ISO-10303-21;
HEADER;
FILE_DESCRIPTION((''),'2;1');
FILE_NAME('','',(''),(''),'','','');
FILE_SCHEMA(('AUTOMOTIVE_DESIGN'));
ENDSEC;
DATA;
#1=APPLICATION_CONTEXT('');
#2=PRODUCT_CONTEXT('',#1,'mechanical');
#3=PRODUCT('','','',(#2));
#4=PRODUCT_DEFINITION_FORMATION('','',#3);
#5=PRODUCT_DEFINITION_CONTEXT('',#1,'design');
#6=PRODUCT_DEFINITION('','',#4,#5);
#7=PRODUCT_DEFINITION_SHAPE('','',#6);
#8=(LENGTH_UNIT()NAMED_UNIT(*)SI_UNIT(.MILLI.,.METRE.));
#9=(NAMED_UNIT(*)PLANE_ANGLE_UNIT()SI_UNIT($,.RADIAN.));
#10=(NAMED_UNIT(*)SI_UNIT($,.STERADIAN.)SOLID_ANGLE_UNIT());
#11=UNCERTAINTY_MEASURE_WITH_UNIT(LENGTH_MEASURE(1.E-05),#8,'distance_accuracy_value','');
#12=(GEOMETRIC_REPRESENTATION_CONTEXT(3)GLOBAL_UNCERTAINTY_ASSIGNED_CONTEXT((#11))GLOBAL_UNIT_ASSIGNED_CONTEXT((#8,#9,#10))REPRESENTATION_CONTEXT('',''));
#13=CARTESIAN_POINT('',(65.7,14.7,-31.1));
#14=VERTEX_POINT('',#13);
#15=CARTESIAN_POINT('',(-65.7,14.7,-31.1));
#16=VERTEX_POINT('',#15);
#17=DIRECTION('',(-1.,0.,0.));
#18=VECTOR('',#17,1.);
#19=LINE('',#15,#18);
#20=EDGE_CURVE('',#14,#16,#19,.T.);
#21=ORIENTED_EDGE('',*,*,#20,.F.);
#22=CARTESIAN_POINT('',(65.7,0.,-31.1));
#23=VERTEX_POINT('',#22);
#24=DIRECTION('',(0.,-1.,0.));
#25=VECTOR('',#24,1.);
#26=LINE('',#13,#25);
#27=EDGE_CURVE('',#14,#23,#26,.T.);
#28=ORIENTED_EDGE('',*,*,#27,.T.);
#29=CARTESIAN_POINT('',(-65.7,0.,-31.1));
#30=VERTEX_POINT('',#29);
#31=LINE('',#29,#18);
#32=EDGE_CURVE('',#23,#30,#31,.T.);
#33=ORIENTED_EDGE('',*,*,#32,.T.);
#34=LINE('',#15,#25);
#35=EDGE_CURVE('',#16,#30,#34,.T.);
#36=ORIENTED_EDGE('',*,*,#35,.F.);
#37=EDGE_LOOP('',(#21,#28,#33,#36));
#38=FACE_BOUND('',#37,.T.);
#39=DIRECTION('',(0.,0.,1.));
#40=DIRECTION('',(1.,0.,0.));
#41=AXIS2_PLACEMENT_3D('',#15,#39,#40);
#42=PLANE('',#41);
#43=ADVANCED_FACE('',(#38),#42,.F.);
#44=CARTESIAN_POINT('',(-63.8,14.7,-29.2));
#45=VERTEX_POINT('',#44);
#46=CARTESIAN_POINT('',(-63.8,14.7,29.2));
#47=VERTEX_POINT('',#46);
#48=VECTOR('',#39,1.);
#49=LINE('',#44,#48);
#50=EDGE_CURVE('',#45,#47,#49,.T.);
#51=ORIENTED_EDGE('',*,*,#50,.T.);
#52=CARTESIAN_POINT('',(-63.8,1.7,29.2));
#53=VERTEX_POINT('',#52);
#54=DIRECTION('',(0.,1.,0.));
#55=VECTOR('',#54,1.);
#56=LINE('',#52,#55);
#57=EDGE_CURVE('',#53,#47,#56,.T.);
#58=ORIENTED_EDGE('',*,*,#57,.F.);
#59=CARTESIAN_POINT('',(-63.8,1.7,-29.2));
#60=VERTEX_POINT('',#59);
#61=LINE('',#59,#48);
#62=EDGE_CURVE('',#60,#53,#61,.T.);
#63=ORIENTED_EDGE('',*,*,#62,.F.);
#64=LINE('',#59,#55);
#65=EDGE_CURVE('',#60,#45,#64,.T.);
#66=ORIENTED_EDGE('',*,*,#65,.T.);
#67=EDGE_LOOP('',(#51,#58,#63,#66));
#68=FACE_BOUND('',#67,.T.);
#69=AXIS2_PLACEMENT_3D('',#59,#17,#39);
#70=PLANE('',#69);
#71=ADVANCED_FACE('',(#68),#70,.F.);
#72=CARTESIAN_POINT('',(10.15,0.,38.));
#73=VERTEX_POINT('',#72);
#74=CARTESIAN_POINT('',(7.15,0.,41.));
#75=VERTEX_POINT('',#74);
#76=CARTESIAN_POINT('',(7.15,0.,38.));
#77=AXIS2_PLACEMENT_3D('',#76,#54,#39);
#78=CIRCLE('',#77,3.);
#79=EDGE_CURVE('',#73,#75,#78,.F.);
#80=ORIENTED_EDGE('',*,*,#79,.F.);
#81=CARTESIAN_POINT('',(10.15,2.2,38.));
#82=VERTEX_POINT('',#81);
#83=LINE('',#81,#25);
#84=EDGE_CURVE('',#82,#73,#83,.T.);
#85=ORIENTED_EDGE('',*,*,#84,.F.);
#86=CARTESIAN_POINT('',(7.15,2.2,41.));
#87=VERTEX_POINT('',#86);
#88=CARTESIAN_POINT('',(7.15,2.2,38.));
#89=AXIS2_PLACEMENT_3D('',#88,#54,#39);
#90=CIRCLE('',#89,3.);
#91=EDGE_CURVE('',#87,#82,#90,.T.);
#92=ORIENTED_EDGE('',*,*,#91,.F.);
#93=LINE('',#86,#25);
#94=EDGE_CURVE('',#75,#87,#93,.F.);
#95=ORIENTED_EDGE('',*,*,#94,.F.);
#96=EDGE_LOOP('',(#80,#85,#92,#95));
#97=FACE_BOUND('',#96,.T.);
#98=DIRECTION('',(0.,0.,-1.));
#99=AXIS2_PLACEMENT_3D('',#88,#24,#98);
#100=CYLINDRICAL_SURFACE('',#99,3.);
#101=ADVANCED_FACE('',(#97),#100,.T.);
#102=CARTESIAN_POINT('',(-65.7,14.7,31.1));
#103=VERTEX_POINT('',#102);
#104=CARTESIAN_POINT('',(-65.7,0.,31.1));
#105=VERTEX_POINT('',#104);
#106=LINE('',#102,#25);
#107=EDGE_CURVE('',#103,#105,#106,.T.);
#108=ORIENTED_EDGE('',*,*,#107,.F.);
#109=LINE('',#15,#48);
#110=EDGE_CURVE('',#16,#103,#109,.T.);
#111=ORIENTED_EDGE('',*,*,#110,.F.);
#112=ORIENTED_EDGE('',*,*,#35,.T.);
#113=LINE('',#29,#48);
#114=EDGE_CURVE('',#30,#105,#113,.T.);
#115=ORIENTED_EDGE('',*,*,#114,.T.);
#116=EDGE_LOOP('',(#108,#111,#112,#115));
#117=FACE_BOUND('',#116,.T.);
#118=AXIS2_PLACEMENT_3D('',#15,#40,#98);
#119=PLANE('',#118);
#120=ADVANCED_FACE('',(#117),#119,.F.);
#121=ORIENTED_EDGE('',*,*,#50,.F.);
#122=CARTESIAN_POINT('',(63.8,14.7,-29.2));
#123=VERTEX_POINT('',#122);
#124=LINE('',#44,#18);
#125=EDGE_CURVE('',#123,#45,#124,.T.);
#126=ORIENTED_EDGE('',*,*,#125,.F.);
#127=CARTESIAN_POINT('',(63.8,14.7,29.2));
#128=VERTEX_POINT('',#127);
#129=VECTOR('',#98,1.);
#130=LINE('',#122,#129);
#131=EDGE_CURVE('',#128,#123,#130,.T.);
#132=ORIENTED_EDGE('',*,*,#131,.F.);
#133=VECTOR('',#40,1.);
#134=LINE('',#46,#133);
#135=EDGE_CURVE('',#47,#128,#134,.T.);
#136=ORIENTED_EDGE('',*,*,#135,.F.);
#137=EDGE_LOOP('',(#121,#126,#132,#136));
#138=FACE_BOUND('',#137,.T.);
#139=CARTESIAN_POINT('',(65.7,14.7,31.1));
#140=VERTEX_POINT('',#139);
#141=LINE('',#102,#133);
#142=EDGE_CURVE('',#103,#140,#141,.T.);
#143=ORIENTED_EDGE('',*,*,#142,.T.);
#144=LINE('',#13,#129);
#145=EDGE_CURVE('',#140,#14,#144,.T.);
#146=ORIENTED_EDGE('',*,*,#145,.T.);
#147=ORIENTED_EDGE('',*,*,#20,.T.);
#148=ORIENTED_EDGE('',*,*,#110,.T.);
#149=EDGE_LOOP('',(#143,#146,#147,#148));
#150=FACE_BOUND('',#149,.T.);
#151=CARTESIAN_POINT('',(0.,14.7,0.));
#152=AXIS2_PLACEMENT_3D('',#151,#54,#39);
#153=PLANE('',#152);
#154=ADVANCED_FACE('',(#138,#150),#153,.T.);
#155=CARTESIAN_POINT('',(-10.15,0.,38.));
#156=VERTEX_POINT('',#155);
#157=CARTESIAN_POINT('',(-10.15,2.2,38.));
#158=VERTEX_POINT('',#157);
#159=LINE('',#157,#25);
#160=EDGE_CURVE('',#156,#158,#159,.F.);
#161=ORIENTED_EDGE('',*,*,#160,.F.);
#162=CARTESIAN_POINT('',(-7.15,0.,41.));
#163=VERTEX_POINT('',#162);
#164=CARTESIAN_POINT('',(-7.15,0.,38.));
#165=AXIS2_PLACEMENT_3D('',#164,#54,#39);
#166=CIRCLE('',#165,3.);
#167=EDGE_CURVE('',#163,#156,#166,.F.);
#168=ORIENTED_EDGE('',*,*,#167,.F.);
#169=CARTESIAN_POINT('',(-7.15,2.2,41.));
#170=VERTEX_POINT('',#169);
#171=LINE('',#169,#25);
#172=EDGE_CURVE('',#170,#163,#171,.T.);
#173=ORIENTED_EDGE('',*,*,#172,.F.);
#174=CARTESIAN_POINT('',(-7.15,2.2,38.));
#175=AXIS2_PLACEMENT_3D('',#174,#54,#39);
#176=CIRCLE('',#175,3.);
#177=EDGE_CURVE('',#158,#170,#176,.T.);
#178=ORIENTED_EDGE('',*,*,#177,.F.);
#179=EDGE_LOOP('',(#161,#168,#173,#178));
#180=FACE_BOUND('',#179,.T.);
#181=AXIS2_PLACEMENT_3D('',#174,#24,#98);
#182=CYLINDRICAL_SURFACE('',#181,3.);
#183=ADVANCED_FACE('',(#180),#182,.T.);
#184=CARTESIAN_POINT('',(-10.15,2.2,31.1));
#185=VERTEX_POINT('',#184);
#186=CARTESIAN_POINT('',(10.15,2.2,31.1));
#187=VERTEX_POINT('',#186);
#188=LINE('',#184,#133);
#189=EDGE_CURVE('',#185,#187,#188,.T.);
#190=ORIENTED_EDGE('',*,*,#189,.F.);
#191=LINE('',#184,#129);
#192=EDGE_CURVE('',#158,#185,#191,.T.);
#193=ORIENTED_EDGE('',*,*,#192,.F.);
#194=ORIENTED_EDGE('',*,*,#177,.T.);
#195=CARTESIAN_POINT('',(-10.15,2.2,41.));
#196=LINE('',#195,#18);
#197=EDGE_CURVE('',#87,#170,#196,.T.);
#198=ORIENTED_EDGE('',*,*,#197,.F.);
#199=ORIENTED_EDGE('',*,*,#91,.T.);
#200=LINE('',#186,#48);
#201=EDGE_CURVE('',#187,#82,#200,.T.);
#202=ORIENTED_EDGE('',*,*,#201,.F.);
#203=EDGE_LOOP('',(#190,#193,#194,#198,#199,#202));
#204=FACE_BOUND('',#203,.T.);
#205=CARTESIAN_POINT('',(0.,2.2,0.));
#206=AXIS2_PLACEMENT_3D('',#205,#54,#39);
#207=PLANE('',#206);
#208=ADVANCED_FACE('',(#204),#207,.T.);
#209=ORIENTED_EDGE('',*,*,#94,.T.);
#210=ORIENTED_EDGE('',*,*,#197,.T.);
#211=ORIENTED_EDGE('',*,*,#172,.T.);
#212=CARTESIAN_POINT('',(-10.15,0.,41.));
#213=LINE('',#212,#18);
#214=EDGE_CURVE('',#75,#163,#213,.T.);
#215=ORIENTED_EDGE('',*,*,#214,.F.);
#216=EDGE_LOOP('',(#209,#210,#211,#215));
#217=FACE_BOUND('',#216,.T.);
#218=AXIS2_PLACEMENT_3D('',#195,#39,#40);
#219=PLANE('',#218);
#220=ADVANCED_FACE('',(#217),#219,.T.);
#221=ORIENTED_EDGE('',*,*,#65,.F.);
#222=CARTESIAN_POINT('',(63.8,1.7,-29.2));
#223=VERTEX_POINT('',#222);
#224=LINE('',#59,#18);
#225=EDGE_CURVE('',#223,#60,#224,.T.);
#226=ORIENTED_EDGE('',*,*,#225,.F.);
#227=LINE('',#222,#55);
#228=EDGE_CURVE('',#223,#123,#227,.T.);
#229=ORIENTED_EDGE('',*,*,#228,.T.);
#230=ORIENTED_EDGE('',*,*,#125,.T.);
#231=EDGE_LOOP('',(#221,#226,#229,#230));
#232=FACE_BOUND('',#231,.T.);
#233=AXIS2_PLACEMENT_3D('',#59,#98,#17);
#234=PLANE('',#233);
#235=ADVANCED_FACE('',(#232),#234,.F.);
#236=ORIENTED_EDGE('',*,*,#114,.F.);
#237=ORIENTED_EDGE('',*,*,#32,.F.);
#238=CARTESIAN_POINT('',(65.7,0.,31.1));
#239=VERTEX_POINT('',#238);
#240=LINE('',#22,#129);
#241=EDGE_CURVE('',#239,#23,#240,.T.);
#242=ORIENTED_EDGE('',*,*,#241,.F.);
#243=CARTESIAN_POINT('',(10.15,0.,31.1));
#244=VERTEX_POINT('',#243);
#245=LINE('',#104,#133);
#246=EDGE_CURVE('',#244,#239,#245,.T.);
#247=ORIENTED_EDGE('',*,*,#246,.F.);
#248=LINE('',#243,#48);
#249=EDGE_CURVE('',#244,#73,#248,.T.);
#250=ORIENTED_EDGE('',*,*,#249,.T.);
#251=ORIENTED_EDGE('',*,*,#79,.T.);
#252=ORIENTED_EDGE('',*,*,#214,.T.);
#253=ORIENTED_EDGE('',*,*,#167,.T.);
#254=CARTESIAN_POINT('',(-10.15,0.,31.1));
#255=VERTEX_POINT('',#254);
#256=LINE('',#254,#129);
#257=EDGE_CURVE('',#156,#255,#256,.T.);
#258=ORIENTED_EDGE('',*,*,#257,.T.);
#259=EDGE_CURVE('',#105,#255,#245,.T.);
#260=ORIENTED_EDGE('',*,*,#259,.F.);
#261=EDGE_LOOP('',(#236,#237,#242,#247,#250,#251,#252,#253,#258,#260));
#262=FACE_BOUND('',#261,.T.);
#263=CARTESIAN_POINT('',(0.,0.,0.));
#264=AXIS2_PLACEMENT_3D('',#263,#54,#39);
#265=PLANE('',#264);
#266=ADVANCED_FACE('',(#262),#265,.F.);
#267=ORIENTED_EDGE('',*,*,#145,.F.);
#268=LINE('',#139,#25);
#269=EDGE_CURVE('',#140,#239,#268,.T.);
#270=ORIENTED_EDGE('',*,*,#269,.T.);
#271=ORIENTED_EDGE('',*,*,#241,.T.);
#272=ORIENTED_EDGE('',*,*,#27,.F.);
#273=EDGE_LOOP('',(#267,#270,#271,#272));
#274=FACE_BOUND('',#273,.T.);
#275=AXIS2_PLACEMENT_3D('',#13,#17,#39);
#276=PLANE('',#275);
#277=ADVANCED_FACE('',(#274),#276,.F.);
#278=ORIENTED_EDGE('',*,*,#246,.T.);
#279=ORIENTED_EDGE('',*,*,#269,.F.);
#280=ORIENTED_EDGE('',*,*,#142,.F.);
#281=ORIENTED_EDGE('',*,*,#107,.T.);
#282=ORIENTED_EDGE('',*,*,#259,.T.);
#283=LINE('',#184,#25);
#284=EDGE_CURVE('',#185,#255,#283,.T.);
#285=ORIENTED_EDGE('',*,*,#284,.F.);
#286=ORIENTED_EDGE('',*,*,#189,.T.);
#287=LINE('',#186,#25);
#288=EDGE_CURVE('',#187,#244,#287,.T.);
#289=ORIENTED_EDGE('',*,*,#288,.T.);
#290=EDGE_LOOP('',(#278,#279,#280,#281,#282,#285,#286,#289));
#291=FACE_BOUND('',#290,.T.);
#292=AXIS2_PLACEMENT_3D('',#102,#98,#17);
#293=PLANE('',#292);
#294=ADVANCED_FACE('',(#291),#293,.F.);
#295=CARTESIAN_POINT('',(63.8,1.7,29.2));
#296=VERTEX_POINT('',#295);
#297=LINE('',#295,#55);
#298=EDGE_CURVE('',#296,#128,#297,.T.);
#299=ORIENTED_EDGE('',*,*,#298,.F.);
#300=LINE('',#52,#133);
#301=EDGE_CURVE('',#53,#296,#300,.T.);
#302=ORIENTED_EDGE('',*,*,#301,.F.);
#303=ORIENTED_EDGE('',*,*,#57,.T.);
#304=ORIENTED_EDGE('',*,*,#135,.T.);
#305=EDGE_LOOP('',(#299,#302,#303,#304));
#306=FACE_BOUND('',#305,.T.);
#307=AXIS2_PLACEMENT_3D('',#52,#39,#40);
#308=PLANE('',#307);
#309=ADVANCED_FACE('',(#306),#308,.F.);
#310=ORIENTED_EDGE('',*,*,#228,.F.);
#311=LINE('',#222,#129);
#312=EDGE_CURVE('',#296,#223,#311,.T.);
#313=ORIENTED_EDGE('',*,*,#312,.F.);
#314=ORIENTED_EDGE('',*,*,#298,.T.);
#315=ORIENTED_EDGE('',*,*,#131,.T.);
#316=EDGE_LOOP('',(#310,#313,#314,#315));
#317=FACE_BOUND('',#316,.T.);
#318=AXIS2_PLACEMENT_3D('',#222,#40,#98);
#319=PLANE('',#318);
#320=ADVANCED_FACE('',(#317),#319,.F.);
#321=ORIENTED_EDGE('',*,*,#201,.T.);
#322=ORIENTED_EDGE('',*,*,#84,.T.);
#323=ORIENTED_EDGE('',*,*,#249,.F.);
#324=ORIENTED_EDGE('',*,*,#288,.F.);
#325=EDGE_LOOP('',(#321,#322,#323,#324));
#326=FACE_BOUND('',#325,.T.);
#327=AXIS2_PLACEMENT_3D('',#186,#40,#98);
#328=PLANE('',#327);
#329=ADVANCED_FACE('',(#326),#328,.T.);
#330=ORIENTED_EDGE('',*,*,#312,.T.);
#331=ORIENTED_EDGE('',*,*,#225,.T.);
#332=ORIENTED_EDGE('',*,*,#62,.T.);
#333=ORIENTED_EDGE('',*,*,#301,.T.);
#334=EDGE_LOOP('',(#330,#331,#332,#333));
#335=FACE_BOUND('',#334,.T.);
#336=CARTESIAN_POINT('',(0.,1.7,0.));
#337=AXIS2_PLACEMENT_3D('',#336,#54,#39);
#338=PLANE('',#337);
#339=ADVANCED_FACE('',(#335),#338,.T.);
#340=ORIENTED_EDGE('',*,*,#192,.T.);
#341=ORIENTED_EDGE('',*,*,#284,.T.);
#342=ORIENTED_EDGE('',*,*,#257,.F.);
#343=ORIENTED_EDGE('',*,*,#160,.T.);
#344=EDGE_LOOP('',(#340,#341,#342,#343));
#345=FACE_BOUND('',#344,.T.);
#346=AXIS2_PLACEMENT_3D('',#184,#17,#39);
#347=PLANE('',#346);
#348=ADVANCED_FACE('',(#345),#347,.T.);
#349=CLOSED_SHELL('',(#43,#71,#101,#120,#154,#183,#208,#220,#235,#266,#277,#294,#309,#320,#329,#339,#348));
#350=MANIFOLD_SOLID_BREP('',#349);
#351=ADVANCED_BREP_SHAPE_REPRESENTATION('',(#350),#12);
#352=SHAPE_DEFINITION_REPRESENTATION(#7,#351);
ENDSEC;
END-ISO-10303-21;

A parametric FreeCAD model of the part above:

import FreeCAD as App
import Part
import Sketcher
Q = App.Units.Quantity


def edges_at(feature, points):
    """Names of the edges that pass closest to the given points."""
    edges = feature.Shape.Edges
    near = lambda p: min(range(len(edges)), key=lambda i: edges[i].distToShape(Part.Vertex(*p))[0])
    return sorted({f"Edge{near(p) + 1}" for p in points})


def add_polygon(sketch, points):
    """Adds a closed chain of lines whose ends are joined by coincident constraints."""
    first, n = sketch.GeometryCount, len(points)
    for a, b in zip(points, points[1:] + points[:1]):
        sketch.addGeometry(Part.LineSegment(App.Vector(*a, 0), App.Vector(*b, 0)), False)
    for i in range(n):
        sketch.addConstraint(Sketcher.Constraint("Coincident", first + i, 2, first + (i + 1) % n, 1))

doc = App.newDocument("Part")
body = doc.addObject("PartDesign::Body", "Body")

# Sketch on XZ plane
sketch1 = doc.addObject("Sketcher::SketchObject", "Sketch")
body.addObject(sketch1)
sketch1.AttachmentSupport = (doc.XZ_Plane, [""])
sketch1.MapMode = "FlatFace"
add_polygon(sketch1, [(-66, -31), (-66, 31), (66, 31), (66, -31)])  # lines 0-3
sketch1.addConstraint([
    Sketcher.Constraint("Vertical", 0),
    Sketcher.Constraint("Horizontal", 1),
    Sketcher.Constraint("Vertical", 2),
    Sketcher.Constraint("Horizontal", 3),
    Sketcher.Constraint("Symmetric", 0, 2, 2, 2, -1, 1),
    Sketcher.Constraint("DistanceX", 1, 1, 1, 2, Q("131.4 mm")),
    Sketcher.Constraint("DistanceY", 0, 1, 0, 2, Q("62.2 mm")),
])
pad1 = doc.addObject("PartDesign::Pad", "Pad")
body.addObject(pad1)
pad1.Profile = sketch1
pad1.Length = 14.7
pad1.Reversed = True

# Sketch on XZ plane
sketch2 = doc.addObject("Sketcher::SketchObject", "Sketch001")
body.addObject(sketch2)
sketch2.AttachmentSupport = (doc.XZ_Plane, [""])
sketch2.MapMode = "FlatFace"
sketch2.AttachmentOffset = App.Placement(App.Vector(0, 0, -14.7), App.Rotation())
add_polygon(sketch2, [(-64, -29), (-64, 29), (64, 29), (64, -29)])  # lines 0-3
sketch2.addConstraint([
    Sketcher.Constraint("Vertical", 0),
    Sketcher.Constraint("Horizontal", 1),
    Sketcher.Constraint("Vertical", 2),
    Sketcher.Constraint("Horizontal", 3),
    Sketcher.Constraint("Symmetric", 0, 2, 2, 2, -1, 1),
    Sketcher.Constraint("DistanceX", 1, 1, 1, 2, Q("127.6 mm")),
    Sketcher.Constraint("DistanceY", 0, 1, 0, 2, Q("58.4 mm")),
])
pocket1 = doc.addObject("PartDesign::Pocket", "Pocket")
body.addObject(pocket1)
pocket1.Profile = sketch2
pocket1.Length = 13
pocket1.Reversed = True

# Sketch on XZ plane
sketch3 = doc.addObject("Sketcher::SketchObject", "Sketch002")
body.addObject(sketch3)
sketch3.AttachmentSupport = (doc.XZ_Plane, [""])
sketch3.MapMode = "FlatFace"
add_polygon(sketch3, [(-10, 41), (-10, 31), (10, 31), (10, 41)])  # lines 0-3
sketch3.addConstraint([
    Sketcher.Constraint("Vertical", 0),
    Sketcher.Constraint("Horizontal", 1),
    Sketcher.Constraint("Vertical", 2),
    Sketcher.Constraint("Horizontal", 3),
    Sketcher.Constraint("DistanceX", 1, 1, 1, 2, Q("20.3 mm")),
    Sketcher.Constraint("DistanceY", 0, 2, 0, 1, Q("9.9 mm")),
    Sketcher.Constraint("DistanceY", -1, 1, 2, 2, Q("41 mm")),
    Sketcher.Constraint("DistanceX", 0, 2, -1, 1, Q("10.15 mm")),
])
pad2 = doc.addObject("PartDesign::Pad", "Pad001")
body.addObject(pad2)
pad2.Profile = sketch3
pad2.Length = 2.2
pad2.Reversed = True
doc.recompute()

fillet = doc.addObject("PartDesign::Fillet", "Fillet")
body.addObject(fillet)
fillet.Base = (pad2, edges_at(pad2, [(-10.15, 1.1, 41), (10.15, 1.1, 41)]))
fillet.Radius = 3

doc.recompute()
